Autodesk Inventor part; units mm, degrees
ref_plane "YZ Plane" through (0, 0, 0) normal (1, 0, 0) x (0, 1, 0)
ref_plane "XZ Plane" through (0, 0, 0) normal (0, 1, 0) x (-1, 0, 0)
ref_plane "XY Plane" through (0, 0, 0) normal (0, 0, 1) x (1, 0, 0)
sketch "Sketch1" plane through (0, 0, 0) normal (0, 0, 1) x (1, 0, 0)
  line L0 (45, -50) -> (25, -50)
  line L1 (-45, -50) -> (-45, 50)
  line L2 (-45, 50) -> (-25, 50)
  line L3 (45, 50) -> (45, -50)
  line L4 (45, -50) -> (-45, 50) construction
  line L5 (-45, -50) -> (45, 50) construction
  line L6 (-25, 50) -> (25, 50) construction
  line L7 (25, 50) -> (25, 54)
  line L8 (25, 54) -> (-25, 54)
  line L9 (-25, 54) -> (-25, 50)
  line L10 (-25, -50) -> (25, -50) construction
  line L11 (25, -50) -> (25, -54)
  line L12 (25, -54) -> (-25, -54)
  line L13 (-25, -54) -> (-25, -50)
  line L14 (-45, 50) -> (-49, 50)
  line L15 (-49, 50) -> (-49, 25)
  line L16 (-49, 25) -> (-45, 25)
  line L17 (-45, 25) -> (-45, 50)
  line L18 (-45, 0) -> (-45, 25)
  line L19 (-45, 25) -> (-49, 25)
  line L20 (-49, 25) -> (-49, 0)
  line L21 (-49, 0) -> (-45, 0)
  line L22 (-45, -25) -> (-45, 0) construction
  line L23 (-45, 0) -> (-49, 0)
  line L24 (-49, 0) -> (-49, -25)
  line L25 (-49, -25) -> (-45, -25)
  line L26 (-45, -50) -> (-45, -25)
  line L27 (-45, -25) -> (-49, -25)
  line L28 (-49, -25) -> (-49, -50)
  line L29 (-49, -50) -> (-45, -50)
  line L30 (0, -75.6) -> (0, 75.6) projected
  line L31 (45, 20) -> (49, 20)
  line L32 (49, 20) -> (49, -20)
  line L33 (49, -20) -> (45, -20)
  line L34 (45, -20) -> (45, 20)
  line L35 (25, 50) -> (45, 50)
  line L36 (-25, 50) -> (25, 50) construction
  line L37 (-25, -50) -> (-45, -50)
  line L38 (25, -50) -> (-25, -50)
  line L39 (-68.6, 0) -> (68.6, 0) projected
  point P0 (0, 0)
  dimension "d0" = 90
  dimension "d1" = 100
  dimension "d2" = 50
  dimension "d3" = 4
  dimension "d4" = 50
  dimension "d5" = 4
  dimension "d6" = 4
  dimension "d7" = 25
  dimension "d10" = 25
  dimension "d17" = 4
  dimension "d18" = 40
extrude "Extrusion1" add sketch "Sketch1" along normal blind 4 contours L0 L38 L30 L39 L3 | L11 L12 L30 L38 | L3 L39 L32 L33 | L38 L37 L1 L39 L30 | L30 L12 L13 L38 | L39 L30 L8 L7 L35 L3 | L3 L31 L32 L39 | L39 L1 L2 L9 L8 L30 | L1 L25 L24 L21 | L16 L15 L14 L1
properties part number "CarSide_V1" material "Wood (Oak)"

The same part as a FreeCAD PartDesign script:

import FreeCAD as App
import Part
import Sketcher
Q = App.Units.Quantity

doc = App.newDocument("Part")
body = doc.addObject("PartDesign::Body", "Body")

# Sketch on XY plane
sketch1 = doc.addObject("Sketcher::SketchObject", "Sketch")
body.addObject(sketch1)
sketch1.AttachmentSupport = (doc.XY_Plane, [""])
sketch1.MapMode = "FlatFace"
sketch1.addGeometry([
    Part.LineSegment(App.Vector(25, -50, 0), App.Vector(45, -50, 0)),  # 0
    Part.LineSegment(App.Vector(45, -50, 0), App.Vector(45, -20, 0)),  # 1
    Part.LineSegment(App.Vector(45, -20, 0), App.Vector(49, -20, 0)),  # 2
    Part.LineSegment(App.Vector(49, -20, 0), App.Vector(49, 20, 0)),  # 3
    Part.LineSegment(App.Vector(49, 20, 0), App.Vector(45, 20, 0)),  # 4
    Part.LineSegment(App.Vector(45, 20, 0), App.Vector(45, 50, 0)),  # 5
    Part.LineSegment(App.Vector(45, 50, 0), App.Vector(25, 50, 0)),  # 6
    Part.LineSegment(App.Vector(25, 50, 0), App.Vector(25, 54, 0)),  # 7
    Part.LineSegment(App.Vector(25, 54, 0), App.Vector(-25, 54, 0)),  # 8
    Part.LineSegment(App.Vector(-25, 54, 0), App.Vector(-25, 50, 0)),  # 9
    Part.LineSegment(App.Vector(-25, 50, 0), App.Vector(-49, 50, 0)),  # 10
    Part.LineSegment(App.Vector(-49, 50, 0), App.Vector(-49, 25, 0)),  # 11
    Part.LineSegment(App.Vector(-49, 25, 0), App.Vector(-45, 25, 0)),  # 12
    Part.LineSegment(App.Vector(-45, 25, 0), App.Vector(-45, 0, 0)),  # 13
    Part.LineSegment(App.Vector(-45, 0, 0), App.Vector(-49, 0, 0)),  # 14
    Part.LineSegment(App.Vector(-49, 0, 0), App.Vector(-49, -25, 0)),  # 15
    Part.LineSegment(App.Vector(-49, -25, 0), App.Vector(-45, -25, 0)),  # 16
    Part.LineSegment(App.Vector(-45, -25, 0), App.Vector(-45, -50, 0)),  # 17
    Part.LineSegment(App.Vector(-45, -50, 0), App.Vector(-25, -50, 0)),  # 18
    Part.LineSegment(App.Vector(-25, -50, 0), App.Vector(-25, -54, 0)),  # 19
    Part.LineSegment(App.Vector(-25, -54, 0), App.Vector(25, -54, 0)),  # 20
    Part.LineSegment(App.Vector(25, -54, 0), App.Vector(25, -50, 0)),  # 21
], False)
sketch1.addConstraint([
    Sketcher.Constraint("Coincident", 0, 2, 1, 1),
    Sketcher.Constraint("Coincident", 1, 2, 2, 1),
    Sketcher.Constraint("Coincident", 2, 2, 3, 1),
    Sketcher.Constraint("Coincident", 3, 2, 4, 1),
    Sketcher.Constraint("Coincident", 4, 2, 5, 1),
    Sketcher.Constraint("Coincident", 5, 2, 6, 1),
    Sketcher.Constraint("Coincident", 6, 2, 7, 1),
    Sketcher.Constraint("Coincident", 7, 2, 8, 1),
    Sketcher.Constraint("Coincident", 8, 2, 9, 1),
    Sketcher.Constraint("Coincident", 9, 2, 10, 1),
    Sketcher.Constraint("Coincident", 10, 2, 11, 1),
    Sketcher.Constraint("Coincident", 11, 2, 12, 1),
    Sketcher.Constraint("Coincident", 12, 2, 13, 1),
    Sketcher.Constraint("Coincident", 13, 2, 14, 1),
    Sketcher.Constraint("Coincident", 14, 2, 15, 1),
    Sketcher.Constraint("Coincident", 15, 2, 16, 1),
    Sketcher.Constraint("Coincident", 16, 2, 17, 1),
    Sketcher.Constraint("Coincident", 17, 2, 18, 1),
    Sketcher.Constraint("Coincident", 18, 2, 19, 1),
    Sketcher.Constraint("Coincident", 19, 2, 20, 1),
    Sketcher.Constraint("Coincident", 20, 2, 21, 1),
    Sketcher.Constraint("Coincident", 21, 2, 0, 1),
    Sketcher.Constraint("Horizontal", 0),
    Sketcher.Constraint("Vertical", 1),
    Sketcher.Constraint("Horizontal", 2),
    Sketcher.Constraint("Vertical", 3),
    Sketcher.Constraint("Horizontal", 4),
    Sketcher.Constraint("Vertical", 5),
    Sketcher.Constraint("Horizontal", 6),
    Sketcher.Constraint("Vertical", 7),
    Sketcher.Constraint("Horizontal", 8),
    Sketcher.Constraint("Vertical", 9),
    Sketcher.Constraint("Horizontal", 10),
    Sketcher.Constraint("Vertical", 11),
    Sketcher.Constraint("Horizontal", 12),
    Sketcher.Constraint("Vertical", 13),
    Sketcher.Constraint("Horizontal", 14),
    Sketcher.Constraint("Vertical", 15),
    Sketcher.Constraint("Horizontal", 16),
    Sketcher.Constraint("Vertical", 17),
    Sketcher.Constraint("Horizontal", 18),
    Sketcher.Constraint("Vertical", 19),
    Sketcher.Constraint("Horizontal", 20),
    Sketcher.Constraint("Vertical", 21),
    Sketcher.Constraint("Symmetric", 5, 2, 17, 2, -1, 1),
    Sketcher.Constraint("Symmetric", 7, 2, 19, 2, -1, 1),
    Sketcher.Constraint("Symmetric", 9, 2, 21, 2, -1, 1),
    Sketcher.Constraint("Symmetric", 6, 2, 9, 2, -2),
    Sketcher.Constraint("Symmetric", 1, 2, 4, 2, -1),
    Sketcher.Constraint("Symmetric", 11, 2, 15, 2, -1),
    Sketcher.Constraint("PointOnObject", 13, 2, -1),
    Sketcher.Constraint("Vertical", 13, 2, 16, 2),
    Sketcher.Constraint("Equal", 4, 12),
    Sketcher.Constraint("Equal", 16, 7),
    Sketcher.Constraint("Equal", 11, 13),
    Sketcher.Constraint("DistanceX", 2, 1, 2, 2, Q("4 mm")),
    Sketcher.Constraint("DistanceX", 8, 2, 8, 1, Q("50 mm")),
    Sketcher.Constraint("DistanceY", 3, 1, 3, 2, Q("40 mm")),
    Sketcher.Constraint("DistanceY", 11, 2, 11, 1, Q("25 mm")),
    Sketcher.Constraint("DistanceX", 0, 1, 0, 2, Q("20 mm")),
])
pad1 = doc.addObject("PartDesign::Pad", "Pad")
body.addObject(pad1)
pad1.Profile = sketch1
pad1.Length = 4

doc.recompute()
